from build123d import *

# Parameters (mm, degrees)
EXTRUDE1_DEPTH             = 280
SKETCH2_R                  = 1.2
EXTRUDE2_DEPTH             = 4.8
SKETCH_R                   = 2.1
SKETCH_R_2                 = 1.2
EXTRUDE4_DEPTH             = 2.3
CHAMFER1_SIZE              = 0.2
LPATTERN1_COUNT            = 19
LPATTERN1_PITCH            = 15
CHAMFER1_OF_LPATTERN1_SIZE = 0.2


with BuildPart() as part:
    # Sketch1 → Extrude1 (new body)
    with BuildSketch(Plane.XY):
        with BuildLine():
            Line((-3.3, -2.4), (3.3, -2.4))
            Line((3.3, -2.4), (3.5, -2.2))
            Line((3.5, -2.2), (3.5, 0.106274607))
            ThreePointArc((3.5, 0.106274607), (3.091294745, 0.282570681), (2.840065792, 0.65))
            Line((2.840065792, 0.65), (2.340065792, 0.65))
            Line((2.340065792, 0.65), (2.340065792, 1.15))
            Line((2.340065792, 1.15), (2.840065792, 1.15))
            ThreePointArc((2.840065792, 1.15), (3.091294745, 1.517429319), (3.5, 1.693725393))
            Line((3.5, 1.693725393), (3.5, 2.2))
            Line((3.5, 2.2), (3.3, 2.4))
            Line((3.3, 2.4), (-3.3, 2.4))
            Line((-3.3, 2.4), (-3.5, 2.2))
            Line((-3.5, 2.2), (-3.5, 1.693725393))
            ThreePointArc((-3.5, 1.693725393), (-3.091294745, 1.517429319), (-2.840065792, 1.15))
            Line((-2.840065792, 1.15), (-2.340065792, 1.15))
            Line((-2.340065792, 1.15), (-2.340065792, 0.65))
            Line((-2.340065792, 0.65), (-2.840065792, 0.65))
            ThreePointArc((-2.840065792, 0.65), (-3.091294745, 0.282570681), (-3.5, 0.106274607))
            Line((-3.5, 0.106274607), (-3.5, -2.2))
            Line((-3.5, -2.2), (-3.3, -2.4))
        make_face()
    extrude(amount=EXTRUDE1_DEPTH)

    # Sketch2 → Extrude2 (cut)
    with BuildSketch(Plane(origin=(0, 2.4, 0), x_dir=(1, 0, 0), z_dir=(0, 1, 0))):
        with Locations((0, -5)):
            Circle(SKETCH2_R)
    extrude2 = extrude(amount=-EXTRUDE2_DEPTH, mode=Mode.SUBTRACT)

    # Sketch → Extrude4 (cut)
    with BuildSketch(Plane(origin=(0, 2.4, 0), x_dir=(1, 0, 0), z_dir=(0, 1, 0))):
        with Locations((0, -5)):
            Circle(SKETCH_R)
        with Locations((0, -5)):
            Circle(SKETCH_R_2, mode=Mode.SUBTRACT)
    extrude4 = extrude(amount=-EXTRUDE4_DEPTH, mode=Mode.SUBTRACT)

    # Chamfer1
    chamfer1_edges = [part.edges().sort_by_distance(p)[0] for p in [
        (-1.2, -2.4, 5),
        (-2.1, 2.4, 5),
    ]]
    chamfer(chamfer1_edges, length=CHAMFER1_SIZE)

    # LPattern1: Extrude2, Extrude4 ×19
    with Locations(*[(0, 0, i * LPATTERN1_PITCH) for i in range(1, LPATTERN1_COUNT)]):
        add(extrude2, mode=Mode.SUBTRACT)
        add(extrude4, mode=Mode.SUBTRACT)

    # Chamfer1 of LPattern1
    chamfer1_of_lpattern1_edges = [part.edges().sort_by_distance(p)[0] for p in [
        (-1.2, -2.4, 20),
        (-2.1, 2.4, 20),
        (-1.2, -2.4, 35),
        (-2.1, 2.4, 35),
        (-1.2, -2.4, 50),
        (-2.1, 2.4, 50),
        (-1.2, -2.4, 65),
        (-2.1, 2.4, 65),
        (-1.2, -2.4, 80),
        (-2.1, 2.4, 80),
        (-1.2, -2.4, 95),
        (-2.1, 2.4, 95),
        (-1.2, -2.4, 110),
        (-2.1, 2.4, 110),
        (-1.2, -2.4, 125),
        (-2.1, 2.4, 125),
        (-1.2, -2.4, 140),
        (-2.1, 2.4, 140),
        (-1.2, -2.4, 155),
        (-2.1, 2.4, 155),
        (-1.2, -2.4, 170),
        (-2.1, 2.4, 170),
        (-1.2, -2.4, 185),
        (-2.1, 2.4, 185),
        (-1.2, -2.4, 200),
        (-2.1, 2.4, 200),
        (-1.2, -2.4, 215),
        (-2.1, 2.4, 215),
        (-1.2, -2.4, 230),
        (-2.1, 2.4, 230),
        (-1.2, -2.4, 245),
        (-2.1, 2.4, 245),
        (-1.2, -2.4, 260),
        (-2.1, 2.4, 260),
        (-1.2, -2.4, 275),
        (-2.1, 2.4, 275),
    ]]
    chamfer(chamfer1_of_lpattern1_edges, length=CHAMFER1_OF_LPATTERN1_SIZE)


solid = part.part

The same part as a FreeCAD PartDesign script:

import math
import FreeCAD as App
import Part
import Sketcher


def edges_at(feature, points):
    """Names of the edges that pass closest to the given points."""
    edges = feature.Shape.Edges
    near = lambda p: min(range(len(edges)), key=lambda i: edges[i].distToShape(Part.Vertex(*p))[0])
    return sorted({f"Edge{near(p) + 1}" for p in points})

doc = App.newDocument("Part")
body = doc.addObject("PartDesign::Body", "Body")

# Sketch on XY plane
sketch1 = body.newObject("Sketcher::SketchObject", "Sketch")
sketch1.AttachmentSupport = (doc.getObject("XY_Plane"), [""])
sketch1.MapMode = "FlatFace"
sketch1.addGeometry([
    Part.LineSegment(App.Vector(-3.3, -2.4, 0), App.Vector(3.3, -2.4, 0)),  # 0
    Part.LineSegment(App.Vector(3.3, -2.4, 0), App.Vector(3.5, -2.2, 0)),  # 1
    Part.LineSegment(App.Vector(3.5, -2.2, 0), App.Vector(3.5, 0.11, 0)),  # 2
    Part.ArcOfCircle(Part.Circle(App.Vector(3.6, 0.9, 0), App.Vector(0, 0, 1), 0.8), math.radians(-162), math.radians(-97)),  # 3
    Part.LineSegment(App.Vector(2.84, 0.65, 0), App.Vector(2.34, 0.65, 0)),  # 4
    Part.LineSegment(App.Vector(2.34, 0.65, 0), App.Vector(2.34, 1.15, 0)),  # 5
    Part.LineSegment(App.Vector(2.34, 1.15, 0), App.Vector(2.84, 1.15, 0)),  # 6
    Part.ArcOfCircle(Part.Circle(App.Vector(3.6, 0.9, 0), App.Vector(0, 0, 1), 0.8), math.radians(97), math.radians(162)),  # 7
    Part.LineSegment(App.Vector(3.5, 1.69, 0), App.Vector(3.5, 2.2, 0)),  # 8
    Part.LineSegment(App.Vector(3.5, 2.2, 0), App.Vector(3.3, 2.4, 0)),  # 9
    Part.LineSegment(App.Vector(3.3, 2.4, 0), App.Vector(-3.3, 2.4, 0)),  # 10
    Part.LineSegment(App.Vector(-3.3, 2.4, 0), App.Vector(-3.5, 2.2, 0)),  # 11
    Part.LineSegment(App.Vector(-3.5, 2.2, 0), App.Vector(-3.5, 1.69, 0)),  # 12
    Part.ArcOfCircle(Part.Circle(App.Vector(-3.6, 0.9, 0), App.Vector(0, 0, 1), 0.8), math.radians(18), math.radians(83)),  # 13
    Part.LineSegment(App.Vector(-2.84, 1.15, 0), App.Vector(-2.34, 1.15, 0)),  # 14
    Part.LineSegment(App.Vector(-2.34, 1.15, 0), App.Vector(-2.34, 0.65, 0)),  # 15
    Part.LineSegment(App.Vector(-2.34, 0.65, 0), App.Vector(-2.84, 0.65, 0)),  # 16
    Part.ArcOfCircle(Part.Circle(App.Vector(-3.6, 0.9, 0), App.Vector(0, 0, 1), 0.8), math.radians(-83), math.radians(-18)),  # 17
    Part.LineSegment(App.Vector(-3.5, 0.11, 0), App.Vector(-3.5, -2.2, 0)),  # 18
    Part.LineSegment(App.Vector(-3.5, -2.2, 0), App.Vector(-3.3, -2.4, 0)),  # 19
], False)
sketch1.addConstraint([
    Sketcher.Constraint("Coincident", 0, 2, 1, 1),
    Sketcher.Constraint("Coincident", 1, 2, 2, 1),
    Sketcher.Constraint("Coincident", 2, 2, 3, 2),
    Sketcher.Constraint("Coincident", 3, 1, 4, 1),
    Sketcher.Constraint("Coincident", 4, 2, 5, 1),
    Sketcher.Constraint("Coincident", 5, 2, 6, 1),
    Sketcher.Constraint("Coincident", 6, 2, 7, 2),
    Sketcher.Constraint("Coincident", 7, 1, 8, 1),
    Sketcher.Constraint("Coincident", 8, 2, 9, 1),
    Sketcher.Constraint("Coincident", 9, 2, 10, 1),
    Sketcher.Constraint("Coincident", 10, 2, 11, 1),
    Sketcher.Constraint("Coincident", 11, 2, 12, 1),
    Sketcher.Constraint("Coincident", 12, 2, 13, 2),
    Sketcher.Constraint("Coincident", 13, 1, 14, 1),
    Sketcher.Constraint("Coincident", 14, 2, 15, 1),
    Sketcher.Constraint("Coincident", 15, 2, 16, 1),
    Sketcher.Constraint("Coincident", 16, 2, 17, 2),
    Sketcher.Constraint("Coincident", 17, 1, 18, 1),
    Sketcher.Constraint("Coincident", 18, 2, 19, 1),
    Sketcher.Constraint("Coincident", 19, 2, 0, 1),
    Sketcher.Constraint("Horizontal", 0),
    Sketcher.Constraint("Vertical", 2),
    Sketcher.Constraint("Horizontal", 4),
    Sketcher.Constraint("Vertical", 5),
    Sketcher.Constraint("Horizontal", 6),
    Sketcher.Constraint("Vertical", 8),
    Sketcher.Constraint("Horizontal", 10),
    Sketcher.Constraint("Vertical", 12),
    Sketcher.Constraint("Horizontal", 14),
    Sketcher.Constraint("Vertical", 15),
    Sketcher.Constraint("Horizontal", 16),
    Sketcher.Constraint("Vertical", 18),
    Sketcher.Constraint("Coincident", 7, 3, 3, 3),
    Sketcher.Constraint("Coincident", 17, 3, 13, 3),
    Sketcher.Constraint("Equal", 3, 7),
    Sketcher.Constraint("Equal", 7, 13),
    Sketcher.Constraint("Equal", 13, 17),
    Sketcher.Constraint("Symmetric", 0, 2, 10, 2, -1, 1),
    Sketcher.Constraint("Symmetric", 1, 2, 11, 2, -1, 1),
    Sketcher.Constraint("Symmetric", 8, 2, 18, 2, -1, 1),
    Sketcher.Constraint("Symmetric", 3, 3, 13, 3, -2),
    Sketcher.Constraint("Symmetric", 8, 2, 11, 2, -2),
    Sketcher.Constraint("Symmetric", 5, 2, 14, 2, -2),
    Sketcher.Constraint("Perpendicular", 1, 9),
    Sketcher.Constraint("Perpendicular", 11, 19),
    Sketcher.Constraint("Horizontal", 4, 2, 15, 2),
    Sketcher.Constraint("Vertical", 3, 1, 6, 2),
    Sketcher.Constraint("Vertical", 0, 2, 9, 2),
    Sketcher.Constraint("Equal", 16, 5),
    Sketcher.Constraint("Radius", 3, 0.8),
    Sketcher.Constraint("DistanceX", 0, 1, 0, 2, 6.6),
    Sketcher.Constraint("DistanceX", 4, 2, 4, 1, 0.5),
    Sketcher.Constraint("DistanceX", -1, 1, 3, 3, 3.6),
    Sketcher.Constraint("DistanceY", -1, 1, 3, 3, 0.9),
    Sketcher.Constraint("DistanceY", 0, 2, -1, 1, 2.4),
    Sketcher.Constraint("DistanceX", -1, 1, 1, 2, 3.5),
])
pad1 = body.newObject("PartDesign::Pad", "Pad")
pad1.Profile = sketch1
pad1.Length = 280

# Sketch on XZ plane
sketch2 = body.newObject("Sketcher::SketchObject", "Sketch001")
sketch2.AttachmentSupport = (doc.getObject("XZ_Plane"), [""])
sketch2.MapMode = "FlatFace"
sketch2.AttachmentOffset = App.Placement(App.Vector(0, 0, -2.4), App.Rotation())
sketch2.addGeometry(Part.Circle(App.Vector(0, 5, 0), App.Vector(0, 0, 1), 1.2), False)
sketch2.addConstraint([
    Sketcher.Constraint("PointOnObject", 0, 3, -2),
    Sketcher.Constraint("Diameter", 0, 2.4),
    Sketcher.Constraint("DistanceY", -1, 1, 0, 3, 5.0),
])
pocket1 = body.newObject("PartDesign::Pocket", "Pocket")
pocket1.Profile = sketch2
pocket1.Length = 4.8
pocket1.Reversed = True

# Sketch on XZ plane
sketch3 = body.newObject("Sketcher::SketchObject", "Sketch002")
sketch3.AttachmentSupport = (doc.getObject("XZ_Plane"), [""])
sketch3.MapMode = "FlatFace"
sketch3.AttachmentOffset = App.Placement(App.Vector(0, 0, -2.4), App.Rotation())
sketch3.addGeometry([
    Part.Circle(App.Vector(0, 5, 0), App.Vector(0, 0, 1), 2.1),
    Part.Circle(App.Vector(0, 5, 0), App.Vector(0, 0, 1), 1.2),
], False)
sketch3.addConstraint([
    Sketcher.Constraint("Coincident", 1, 3, 0, 3),
    Sketcher.Constraint("PointOnObject", 0, 3, -2),
    Sketcher.Constraint("Diameter", 0, 4.2),
    Sketcher.Constraint("Diameter", 1, 2.4),
    Sketcher.Constraint("DistanceY", -1, 1, 0, 3, 5.0),
])
pocket2 = body.newObject("PartDesign::Pocket", "Pocket001")
pocket2.Profile = sketch3
pocket2.Length = 2.3
pocket2.Reversed = True
doc.recompute()

chamfer = body.newObject("PartDesign::Chamfer", "Chamfer")
chamfer.Base = (pocket2, edges_at(pocket2, [(-1.2, -2.4, 5), (-2.1, 2.4, 5)]))
chamfer.Size = 0.2
doc.recompute()

linearpattern = body.newObject("PartDesign::LinearPattern", "LinearPattern")
linearpattern.Originals = [pocket1, pocket2]
linearpattern.Direction = (doc.getObject("Z_Axis"), [""])
linearpattern.Mode = "offset"
linearpattern.Offset = 15
linearpattern.Occurrences = 19
body.Tip = linearpattern
doc.recompute()

chamfer2 = body.newObject("PartDesign::Chamfer", "Chamfer001")
chamfer2.Base = (linearpattern, edges_at(linearpattern, [
    (-1.2, -2.4, 20),
    (-2.1, 2.4, 20),
    (-1.2, -2.4, 35),
    (-2.1, 2.4, 35),
    (-1.2, -2.4, 50),
    (-2.1, 2.4, 50),
    (-1.2, -2.4, 65),
    (-2.1, 2.4, 65),
    (-1.2, -2.4, 80),
    (-2.1, 2.4, 80),
    (-1.2, -2.4, 95),
    (-2.1, 2.4, 95),
    (-1.2, -2.4, 110),
    (-2.1, 2.4, 110),
    (-1.2, -2.4, 125),
    (-2.1, 2.4, 125),
    (-1.2, -2.4, 140),
    (-2.1, 2.4, 140),
    (-1.2, -2.4, 155),
    (-2.1, 2.4, 155),
    (-1.2, -2.4, 170),
    (-2.1, 2.4, 170),
    (-1.2, -2.4, 185),
    (-2.1, 2.4, 185),
    (-1.2, -2.4, 200),
    (-2.1, 2.4, 200),
    (-1.2, -2.4, 215),
    (-2.1, 2.4, 215),
    (-1.2, -2.4, 230),
    (-2.1, 2.4, 230),
    (-1.2, -2.4, 245),
    (-2.1, 2.4, 245),
    (-1.2, -2.4, 260),
    (-2.1, 2.4, 260),
    (-1.2, -2.4, 275),
    (-2.1, 2.4, 275),
]))
chamfer2.Size = 0.2

doc.recompute()
